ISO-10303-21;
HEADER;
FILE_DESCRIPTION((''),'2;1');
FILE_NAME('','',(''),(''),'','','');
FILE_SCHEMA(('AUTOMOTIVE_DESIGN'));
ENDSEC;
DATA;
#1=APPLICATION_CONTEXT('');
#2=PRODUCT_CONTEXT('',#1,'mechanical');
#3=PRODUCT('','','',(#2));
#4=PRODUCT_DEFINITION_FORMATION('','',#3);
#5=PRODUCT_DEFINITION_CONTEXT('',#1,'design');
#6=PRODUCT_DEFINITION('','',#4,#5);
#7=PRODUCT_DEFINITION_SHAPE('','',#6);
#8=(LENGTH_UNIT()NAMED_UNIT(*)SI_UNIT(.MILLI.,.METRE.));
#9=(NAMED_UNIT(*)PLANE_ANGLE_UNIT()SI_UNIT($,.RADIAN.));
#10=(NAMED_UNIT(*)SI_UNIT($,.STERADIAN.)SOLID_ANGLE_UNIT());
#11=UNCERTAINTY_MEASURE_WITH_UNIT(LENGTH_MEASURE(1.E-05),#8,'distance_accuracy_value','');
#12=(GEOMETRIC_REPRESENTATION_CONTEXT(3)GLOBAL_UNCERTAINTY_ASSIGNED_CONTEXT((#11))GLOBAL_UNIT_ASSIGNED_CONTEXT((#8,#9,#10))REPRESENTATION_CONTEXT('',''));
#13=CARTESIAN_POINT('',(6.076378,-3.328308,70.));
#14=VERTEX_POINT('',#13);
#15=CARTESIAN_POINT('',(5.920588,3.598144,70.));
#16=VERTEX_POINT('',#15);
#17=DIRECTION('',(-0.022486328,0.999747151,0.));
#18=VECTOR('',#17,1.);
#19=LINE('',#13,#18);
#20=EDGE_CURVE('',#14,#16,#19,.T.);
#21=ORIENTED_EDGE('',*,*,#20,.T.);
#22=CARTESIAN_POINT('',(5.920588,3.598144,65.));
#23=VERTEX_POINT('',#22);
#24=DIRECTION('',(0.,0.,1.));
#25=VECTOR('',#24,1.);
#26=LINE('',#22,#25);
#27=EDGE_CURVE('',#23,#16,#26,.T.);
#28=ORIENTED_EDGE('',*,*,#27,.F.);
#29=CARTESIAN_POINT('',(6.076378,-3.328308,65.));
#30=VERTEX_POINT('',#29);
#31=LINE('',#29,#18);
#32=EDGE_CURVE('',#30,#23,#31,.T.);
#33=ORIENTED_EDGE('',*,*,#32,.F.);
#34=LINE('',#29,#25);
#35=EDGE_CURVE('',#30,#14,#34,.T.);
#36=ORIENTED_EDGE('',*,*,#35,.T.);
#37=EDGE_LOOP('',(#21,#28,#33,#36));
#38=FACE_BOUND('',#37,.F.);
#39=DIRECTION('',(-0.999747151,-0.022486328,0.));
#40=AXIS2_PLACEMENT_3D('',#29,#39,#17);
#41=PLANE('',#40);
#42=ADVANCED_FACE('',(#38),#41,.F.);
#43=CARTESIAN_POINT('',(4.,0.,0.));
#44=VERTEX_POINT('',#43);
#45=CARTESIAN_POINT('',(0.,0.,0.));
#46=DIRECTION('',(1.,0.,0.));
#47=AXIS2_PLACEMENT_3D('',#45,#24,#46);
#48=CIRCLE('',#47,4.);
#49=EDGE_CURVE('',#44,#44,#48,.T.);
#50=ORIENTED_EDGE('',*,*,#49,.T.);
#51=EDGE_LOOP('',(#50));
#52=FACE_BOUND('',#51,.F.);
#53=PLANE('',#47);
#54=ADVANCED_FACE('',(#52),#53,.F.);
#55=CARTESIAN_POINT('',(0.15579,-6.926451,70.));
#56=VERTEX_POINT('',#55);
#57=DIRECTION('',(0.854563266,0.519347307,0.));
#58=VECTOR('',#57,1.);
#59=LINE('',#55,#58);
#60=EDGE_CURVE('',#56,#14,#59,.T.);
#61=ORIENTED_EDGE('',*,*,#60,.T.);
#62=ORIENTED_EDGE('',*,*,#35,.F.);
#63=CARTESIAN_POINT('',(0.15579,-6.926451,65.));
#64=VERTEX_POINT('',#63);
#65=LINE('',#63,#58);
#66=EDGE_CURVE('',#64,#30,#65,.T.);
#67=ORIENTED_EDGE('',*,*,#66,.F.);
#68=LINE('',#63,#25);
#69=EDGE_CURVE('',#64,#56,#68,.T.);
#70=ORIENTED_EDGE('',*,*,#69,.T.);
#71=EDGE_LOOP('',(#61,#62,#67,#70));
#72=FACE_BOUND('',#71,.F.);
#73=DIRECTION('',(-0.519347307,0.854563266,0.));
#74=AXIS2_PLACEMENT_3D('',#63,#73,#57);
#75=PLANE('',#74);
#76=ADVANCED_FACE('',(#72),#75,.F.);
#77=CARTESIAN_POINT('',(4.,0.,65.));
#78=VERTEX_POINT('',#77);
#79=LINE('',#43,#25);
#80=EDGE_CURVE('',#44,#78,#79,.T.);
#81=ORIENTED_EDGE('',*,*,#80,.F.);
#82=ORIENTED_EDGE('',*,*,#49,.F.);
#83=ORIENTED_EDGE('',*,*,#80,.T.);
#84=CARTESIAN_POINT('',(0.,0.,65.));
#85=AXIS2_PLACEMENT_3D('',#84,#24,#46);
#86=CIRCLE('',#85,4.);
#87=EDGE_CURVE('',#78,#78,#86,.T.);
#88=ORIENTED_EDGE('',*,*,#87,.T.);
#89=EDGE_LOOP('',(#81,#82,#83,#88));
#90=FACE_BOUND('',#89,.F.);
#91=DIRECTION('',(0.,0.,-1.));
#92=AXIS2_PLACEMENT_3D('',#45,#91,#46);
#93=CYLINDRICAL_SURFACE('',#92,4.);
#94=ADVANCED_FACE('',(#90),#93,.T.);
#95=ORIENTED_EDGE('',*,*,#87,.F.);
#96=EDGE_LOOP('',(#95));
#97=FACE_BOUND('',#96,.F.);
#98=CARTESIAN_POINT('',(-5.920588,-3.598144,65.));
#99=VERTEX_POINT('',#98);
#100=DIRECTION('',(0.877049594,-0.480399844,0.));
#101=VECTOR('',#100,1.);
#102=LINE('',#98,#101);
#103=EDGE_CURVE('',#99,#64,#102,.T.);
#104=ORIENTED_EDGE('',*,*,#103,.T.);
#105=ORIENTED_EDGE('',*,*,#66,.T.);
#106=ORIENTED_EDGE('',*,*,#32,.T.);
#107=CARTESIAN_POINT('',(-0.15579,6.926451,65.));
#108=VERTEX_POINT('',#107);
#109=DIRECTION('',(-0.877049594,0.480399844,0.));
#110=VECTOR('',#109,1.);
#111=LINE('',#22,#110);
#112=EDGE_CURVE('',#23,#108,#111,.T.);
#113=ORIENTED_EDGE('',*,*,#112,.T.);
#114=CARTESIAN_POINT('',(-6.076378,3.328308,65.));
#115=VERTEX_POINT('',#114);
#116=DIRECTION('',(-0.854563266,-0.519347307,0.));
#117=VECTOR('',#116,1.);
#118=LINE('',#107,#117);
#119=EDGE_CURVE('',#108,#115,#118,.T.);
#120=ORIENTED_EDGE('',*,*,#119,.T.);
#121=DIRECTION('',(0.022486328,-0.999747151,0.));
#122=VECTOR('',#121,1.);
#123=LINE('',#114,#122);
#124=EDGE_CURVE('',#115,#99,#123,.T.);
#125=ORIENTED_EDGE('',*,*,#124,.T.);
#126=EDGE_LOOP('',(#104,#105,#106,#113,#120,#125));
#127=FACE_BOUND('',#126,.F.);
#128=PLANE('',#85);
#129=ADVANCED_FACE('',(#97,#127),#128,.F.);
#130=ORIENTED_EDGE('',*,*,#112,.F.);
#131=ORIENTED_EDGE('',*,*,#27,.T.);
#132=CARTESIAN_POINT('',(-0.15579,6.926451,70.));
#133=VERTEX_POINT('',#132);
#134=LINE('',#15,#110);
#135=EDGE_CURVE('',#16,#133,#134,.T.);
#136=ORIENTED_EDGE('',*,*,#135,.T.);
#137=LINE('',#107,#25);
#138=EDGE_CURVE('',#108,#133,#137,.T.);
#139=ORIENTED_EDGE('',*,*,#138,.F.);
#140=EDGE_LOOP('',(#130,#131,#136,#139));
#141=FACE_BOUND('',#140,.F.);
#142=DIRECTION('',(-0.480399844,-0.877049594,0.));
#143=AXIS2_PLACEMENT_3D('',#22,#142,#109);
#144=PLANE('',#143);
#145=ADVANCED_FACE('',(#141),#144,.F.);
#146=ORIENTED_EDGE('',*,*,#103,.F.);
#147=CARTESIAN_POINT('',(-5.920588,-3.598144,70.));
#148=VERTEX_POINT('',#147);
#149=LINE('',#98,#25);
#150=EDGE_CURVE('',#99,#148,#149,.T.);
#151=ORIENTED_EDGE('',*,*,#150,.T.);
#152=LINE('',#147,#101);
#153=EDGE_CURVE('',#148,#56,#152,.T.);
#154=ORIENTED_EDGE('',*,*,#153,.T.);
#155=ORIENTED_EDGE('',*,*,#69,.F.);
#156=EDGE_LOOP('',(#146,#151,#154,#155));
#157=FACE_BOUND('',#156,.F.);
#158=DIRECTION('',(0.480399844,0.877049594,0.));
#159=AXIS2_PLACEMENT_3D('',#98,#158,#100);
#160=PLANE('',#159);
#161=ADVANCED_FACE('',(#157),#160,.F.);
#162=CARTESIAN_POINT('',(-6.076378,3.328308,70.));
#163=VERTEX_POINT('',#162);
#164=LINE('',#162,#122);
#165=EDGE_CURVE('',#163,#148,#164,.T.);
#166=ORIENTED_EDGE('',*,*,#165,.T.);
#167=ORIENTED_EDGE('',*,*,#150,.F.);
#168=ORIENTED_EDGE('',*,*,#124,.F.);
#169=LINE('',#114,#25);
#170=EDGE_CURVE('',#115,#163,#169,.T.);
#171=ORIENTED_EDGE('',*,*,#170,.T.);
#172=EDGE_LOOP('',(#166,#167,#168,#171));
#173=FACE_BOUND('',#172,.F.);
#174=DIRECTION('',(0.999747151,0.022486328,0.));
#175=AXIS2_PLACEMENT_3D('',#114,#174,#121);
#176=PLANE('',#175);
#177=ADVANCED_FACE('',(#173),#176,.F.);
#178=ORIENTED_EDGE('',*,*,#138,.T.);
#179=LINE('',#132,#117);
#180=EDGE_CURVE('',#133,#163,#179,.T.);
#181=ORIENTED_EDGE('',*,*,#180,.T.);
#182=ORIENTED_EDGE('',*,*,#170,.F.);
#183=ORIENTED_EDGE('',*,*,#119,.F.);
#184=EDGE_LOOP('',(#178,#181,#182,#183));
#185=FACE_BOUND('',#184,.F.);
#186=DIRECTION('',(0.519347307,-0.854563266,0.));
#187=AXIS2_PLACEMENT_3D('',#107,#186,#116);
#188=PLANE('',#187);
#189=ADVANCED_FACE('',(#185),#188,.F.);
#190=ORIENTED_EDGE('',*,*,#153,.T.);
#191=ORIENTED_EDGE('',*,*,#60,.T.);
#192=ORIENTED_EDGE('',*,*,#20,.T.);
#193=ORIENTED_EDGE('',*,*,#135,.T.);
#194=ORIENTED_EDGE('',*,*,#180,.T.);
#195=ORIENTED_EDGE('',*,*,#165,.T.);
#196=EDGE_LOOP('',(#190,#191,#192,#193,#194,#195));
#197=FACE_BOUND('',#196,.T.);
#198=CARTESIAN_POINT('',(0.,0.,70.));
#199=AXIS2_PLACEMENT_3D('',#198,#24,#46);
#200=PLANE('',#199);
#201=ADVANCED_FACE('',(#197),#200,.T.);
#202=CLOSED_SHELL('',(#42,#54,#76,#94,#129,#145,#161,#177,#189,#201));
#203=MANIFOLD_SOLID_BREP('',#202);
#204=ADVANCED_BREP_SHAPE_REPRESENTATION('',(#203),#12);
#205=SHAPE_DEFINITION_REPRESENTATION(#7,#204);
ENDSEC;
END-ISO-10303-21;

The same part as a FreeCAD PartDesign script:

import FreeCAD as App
import Part
import Sketcher
from FreeCAD import Vector

doc = App.newDocument("Part")
body = doc.addObject("PartDesign::Body", "Body")

sketch1 = body.newObject("Sketcher::SketchObject", "Sketch")
sketch1.AttachmentSupport = (doc.getObject("XY_Plane"), [""])
sketch1.MapMode = "FlatFace"
sketch1.addGeometry(Part.Circle(Vector(0, 0, 0), Vector(0, 0, 1), 4), False)
sketch1.addConstraint([
    Sketcher.Constraint("Coincident", 0, 3, -1, 1),
    Sketcher.Constraint("Diameter", 0, 8.0),
])
pad1 = body.newObject("PartDesign::Pad", "Pad")
pad1.Profile = sketch1
pad1.Length = 65

sketch2 = body.newObject("Sketcher::SketchObject", "Sketch001")
sketch2.AttachmentSupport = (doc.getObject("XY_Plane"), [""])
sketch2.MapMode = "FlatFace"
sketch2.AttachmentOffset = App.Placement(Vector(0, 0, 65), App.Rotation())
sketch2.addGeometry([
    Part.LineSegment(Vector(6.076378, -3.328308, 0), Vector(5.920588, 3.598144, 0)),
    Part.LineSegment(Vector(5.920588, 3.598144, 0), Vector(-0.15579, 6.926451, 0)),
    Part.LineSegment(Vector(-0.15579, 6.926451, 0), Vector(-6.076378, 3.328308, 0)),
    Part.LineSegment(Vector(-6.076378, 3.328308, 0), Vector(-5.920588, -3.598144, 0)),
    Part.LineSegment(Vector(-5.920588, -3.598144, 0), Vector(0.15579, -6.926451, 0)),
    Part.LineSegment(Vector(0.15579, -6.926451, 0), Vector(6.076378, -3.328308, 0)),
], False)
sketch2.addConstraint([
    Sketcher.Constraint("Coincident", 0, 2, 1, 1),
    Sketcher.Constraint("Coincident", 1, 2, 2, 1),
    Sketcher.Constraint("Coincident", 2, 2, 3, 1),
    Sketcher.Constraint("Coincident", 3, 2, 4, 1),
    Sketcher.Constraint("Coincident", 4, 2, 5, 1),
    Sketcher.Constraint("Coincident", 5, 2, 0, 1),
    Sketcher.Constraint("Symmetric", 0, 2, 3, 2, -1, 1),
    Sketcher.Constraint("Symmetric", 1, 2, 4, 2, -1, 1),
    Sketcher.Constraint("Symmetric", 2, 2, 5, 2, -1, 1),
    Sketcher.Constraint("Equal", 0, 1),
    Sketcher.Constraint("Equal", 1, 2),
    Sketcher.Constraint("DistanceX", 3, 2, 1, 2, 5.764798),
    Sketcher.Constraint("DistanceX", 1, 2, -1, 1, 0.15579),
    Sketcher.Constraint("DistanceY", -1, 1, 1, 2, 6.926451),
    Sketcher.Constraint("DistanceX", 2, 2, 3, 2, 0.15579),
])
pad2 = body.newObject("PartDesign::Pad", "Pad001")
pad2.Profile = sketch2
pad2.Length = 5

doc.recompute()
